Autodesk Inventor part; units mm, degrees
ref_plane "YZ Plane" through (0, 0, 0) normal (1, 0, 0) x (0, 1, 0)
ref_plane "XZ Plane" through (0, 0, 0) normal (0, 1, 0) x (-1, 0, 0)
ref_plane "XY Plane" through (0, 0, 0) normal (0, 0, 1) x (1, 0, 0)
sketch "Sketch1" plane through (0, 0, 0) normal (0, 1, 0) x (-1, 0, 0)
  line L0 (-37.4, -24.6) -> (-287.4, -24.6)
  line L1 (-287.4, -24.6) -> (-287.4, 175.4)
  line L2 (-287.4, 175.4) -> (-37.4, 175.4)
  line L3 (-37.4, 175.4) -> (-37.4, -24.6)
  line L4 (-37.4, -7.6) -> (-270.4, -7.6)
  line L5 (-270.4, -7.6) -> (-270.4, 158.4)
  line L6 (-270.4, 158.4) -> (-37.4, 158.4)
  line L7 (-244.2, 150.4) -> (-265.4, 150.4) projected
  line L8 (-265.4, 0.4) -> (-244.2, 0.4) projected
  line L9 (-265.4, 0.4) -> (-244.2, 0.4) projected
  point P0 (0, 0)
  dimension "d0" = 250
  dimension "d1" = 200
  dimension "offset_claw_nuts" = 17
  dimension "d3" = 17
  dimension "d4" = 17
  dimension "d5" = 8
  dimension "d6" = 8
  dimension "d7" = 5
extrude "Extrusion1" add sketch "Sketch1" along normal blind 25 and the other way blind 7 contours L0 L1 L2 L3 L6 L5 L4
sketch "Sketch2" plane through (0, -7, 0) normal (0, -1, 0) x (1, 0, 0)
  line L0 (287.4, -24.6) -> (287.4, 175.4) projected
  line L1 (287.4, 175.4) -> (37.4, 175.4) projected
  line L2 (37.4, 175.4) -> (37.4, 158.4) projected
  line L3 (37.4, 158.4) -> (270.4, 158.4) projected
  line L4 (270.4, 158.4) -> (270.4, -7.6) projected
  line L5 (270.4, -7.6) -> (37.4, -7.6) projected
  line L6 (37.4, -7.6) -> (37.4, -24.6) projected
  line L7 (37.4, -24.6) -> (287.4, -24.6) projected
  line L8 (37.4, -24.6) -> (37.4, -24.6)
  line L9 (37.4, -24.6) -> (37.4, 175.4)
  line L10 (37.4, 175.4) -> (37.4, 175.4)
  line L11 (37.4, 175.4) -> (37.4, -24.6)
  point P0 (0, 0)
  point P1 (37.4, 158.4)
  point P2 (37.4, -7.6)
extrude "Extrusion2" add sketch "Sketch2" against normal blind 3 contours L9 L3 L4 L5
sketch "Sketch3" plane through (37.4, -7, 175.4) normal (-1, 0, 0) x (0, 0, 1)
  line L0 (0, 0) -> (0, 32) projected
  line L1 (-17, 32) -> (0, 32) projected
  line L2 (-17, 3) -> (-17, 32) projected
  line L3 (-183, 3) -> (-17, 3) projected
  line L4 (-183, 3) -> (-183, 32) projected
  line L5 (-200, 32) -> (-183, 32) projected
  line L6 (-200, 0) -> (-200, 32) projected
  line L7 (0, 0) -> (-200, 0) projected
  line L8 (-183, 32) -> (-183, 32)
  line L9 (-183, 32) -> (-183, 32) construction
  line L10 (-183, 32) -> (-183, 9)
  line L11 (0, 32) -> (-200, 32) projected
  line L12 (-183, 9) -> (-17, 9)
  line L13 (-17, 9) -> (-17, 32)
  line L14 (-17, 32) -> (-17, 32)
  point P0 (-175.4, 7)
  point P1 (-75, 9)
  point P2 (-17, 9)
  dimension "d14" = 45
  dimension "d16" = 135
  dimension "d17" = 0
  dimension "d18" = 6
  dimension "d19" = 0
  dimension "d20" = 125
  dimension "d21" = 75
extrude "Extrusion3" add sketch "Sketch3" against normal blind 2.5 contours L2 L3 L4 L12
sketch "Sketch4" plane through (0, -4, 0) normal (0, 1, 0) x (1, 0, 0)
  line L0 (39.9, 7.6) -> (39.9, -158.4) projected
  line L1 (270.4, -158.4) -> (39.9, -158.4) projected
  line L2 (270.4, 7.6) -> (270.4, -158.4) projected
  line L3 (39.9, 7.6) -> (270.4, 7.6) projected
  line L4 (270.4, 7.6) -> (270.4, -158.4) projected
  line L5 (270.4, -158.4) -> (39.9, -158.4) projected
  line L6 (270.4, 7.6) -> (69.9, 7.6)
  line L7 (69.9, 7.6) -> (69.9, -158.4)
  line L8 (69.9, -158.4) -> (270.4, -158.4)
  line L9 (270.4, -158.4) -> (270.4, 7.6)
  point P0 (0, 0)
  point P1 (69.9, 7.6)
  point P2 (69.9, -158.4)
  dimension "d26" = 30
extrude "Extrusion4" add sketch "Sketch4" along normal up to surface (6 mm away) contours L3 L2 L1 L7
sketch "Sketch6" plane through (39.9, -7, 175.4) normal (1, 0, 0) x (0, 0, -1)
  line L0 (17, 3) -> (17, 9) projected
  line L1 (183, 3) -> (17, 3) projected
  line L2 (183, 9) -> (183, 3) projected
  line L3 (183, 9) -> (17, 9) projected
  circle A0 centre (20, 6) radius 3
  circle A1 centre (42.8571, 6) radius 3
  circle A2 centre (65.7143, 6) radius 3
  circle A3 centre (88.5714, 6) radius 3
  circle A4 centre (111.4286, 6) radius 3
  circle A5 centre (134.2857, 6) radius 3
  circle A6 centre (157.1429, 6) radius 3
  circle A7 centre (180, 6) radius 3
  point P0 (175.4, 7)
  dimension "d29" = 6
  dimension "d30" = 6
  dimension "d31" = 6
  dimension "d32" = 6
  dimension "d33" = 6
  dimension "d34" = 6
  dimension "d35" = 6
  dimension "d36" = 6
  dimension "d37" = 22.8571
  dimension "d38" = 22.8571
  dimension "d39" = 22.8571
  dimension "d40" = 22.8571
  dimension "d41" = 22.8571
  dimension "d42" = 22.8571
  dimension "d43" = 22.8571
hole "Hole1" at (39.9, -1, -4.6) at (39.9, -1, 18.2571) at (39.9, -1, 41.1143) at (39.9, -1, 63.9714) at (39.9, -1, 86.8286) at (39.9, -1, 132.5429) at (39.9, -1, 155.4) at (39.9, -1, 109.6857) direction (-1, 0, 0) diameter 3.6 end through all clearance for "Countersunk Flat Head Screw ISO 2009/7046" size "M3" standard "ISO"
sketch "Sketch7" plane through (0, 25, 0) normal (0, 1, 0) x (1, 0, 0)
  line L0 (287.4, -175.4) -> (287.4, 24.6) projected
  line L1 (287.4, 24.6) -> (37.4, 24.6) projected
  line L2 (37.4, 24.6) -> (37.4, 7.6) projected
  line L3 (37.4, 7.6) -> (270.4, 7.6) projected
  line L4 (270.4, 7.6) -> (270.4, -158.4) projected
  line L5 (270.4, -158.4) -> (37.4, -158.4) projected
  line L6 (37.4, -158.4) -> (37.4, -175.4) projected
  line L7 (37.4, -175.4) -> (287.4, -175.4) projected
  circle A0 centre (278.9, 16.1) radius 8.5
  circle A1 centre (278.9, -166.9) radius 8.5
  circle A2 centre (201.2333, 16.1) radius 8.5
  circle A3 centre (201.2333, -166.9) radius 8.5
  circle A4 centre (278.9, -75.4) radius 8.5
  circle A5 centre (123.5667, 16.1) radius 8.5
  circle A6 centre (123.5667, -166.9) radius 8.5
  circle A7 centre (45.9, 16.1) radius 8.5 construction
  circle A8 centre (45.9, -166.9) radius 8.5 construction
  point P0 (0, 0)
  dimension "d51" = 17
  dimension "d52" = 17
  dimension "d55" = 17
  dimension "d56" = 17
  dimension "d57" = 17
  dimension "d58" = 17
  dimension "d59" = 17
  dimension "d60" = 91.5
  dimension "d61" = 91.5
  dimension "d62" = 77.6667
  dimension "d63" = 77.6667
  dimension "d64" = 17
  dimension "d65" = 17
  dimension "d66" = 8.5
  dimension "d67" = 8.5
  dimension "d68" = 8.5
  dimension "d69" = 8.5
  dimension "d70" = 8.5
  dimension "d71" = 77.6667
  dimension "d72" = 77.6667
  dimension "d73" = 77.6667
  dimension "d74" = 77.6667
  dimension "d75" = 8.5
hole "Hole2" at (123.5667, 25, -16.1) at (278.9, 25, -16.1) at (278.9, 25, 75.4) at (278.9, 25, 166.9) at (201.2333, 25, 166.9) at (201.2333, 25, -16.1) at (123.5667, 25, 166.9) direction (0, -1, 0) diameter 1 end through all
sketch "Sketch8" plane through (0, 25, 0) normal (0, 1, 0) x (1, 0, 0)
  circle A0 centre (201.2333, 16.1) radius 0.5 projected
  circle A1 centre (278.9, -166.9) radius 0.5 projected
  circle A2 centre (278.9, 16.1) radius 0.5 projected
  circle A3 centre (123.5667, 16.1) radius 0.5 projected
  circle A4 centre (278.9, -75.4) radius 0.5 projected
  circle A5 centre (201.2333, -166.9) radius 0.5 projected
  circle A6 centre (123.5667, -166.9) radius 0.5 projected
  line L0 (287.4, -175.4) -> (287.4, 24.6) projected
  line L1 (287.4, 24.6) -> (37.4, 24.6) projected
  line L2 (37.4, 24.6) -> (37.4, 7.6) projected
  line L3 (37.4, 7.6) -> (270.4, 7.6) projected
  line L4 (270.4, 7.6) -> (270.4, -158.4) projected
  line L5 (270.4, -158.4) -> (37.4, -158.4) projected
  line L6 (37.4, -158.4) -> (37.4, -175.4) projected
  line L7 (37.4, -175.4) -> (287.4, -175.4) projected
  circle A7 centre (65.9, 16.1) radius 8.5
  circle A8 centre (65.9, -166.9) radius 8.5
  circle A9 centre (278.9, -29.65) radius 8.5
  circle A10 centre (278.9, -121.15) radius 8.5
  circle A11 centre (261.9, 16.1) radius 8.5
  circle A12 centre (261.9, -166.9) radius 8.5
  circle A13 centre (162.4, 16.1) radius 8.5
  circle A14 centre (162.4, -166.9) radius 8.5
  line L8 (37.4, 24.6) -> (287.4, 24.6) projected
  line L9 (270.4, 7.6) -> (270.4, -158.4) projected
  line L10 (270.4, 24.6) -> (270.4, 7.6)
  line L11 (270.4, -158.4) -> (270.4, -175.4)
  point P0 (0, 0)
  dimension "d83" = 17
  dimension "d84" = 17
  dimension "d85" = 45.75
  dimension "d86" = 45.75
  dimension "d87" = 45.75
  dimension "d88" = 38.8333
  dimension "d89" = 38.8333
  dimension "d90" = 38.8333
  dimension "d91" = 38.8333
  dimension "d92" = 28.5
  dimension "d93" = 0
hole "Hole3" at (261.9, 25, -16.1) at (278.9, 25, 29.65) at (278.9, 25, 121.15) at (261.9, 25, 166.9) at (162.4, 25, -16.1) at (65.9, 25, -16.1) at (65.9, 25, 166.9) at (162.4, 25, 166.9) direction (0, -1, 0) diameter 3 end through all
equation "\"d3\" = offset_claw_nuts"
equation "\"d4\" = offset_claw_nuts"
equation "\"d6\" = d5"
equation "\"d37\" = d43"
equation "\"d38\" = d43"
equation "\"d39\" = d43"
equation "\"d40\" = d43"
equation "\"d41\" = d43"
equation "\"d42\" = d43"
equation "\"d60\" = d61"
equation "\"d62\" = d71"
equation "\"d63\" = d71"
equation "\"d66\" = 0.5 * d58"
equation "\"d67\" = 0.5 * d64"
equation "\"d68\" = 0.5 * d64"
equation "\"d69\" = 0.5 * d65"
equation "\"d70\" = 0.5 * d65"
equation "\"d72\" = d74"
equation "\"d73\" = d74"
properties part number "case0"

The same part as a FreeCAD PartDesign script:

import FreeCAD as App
import Part
import Sketcher
from FreeCAD import Vector
Q = App.Units.Quantity


def add_polygon(sketch, points):
    """Adds a closed chain of lines whose ends are joined by coincident constraints."""
    first, n = sketch.GeometryCount, len(points)
    for a, b in zip(points, points[1:] + points[:1]):
        sketch.addGeometry(Part.LineSegment(App.Vector(*a, 0), App.Vector(*b, 0)), False)
    for i in range(n):
        sketch.addConstraint(Sketcher.Constraint("Coincident", first + i, 2, first + (i + 1) % n, 1))

doc = App.newDocument("Part")
body = doc.addObject("PartDesign::Body", "Body")

# Sketch on XZ plane
sketch1 = body.newObject("Sketcher::SketchObject", "Sketch")
sketch1.AttachmentSupport = (doc.getObject("XZ_Plane"), [""])
sketch1.MapMode = "FlatFace"
add_polygon(sketch1, [(287.4, -24.6), (37.4, -24.6), (37.4, -7.6), (270.4, -7.6), (270.4, 158.4), (37.4, 158.4), (37.4, 175.4), (287.4, 175.4)])  # lines 0-7
sketch1.addConstraint([
    Sketcher.Constraint("Horizontal", 0),
    Sketcher.Constraint("Vertical", 1),
    Sketcher.Constraint("Horizontal", 2),
    Sketcher.Constraint("Vertical", 3),
    Sketcher.Constraint("Horizontal", 4),
    Sketcher.Constraint("Vertical", 5),
    Sketcher.Constraint("Horizontal", 6),
    Sketcher.Constraint("Vertical", 7),
    Sketcher.Constraint("Vertical", 1, 2, 4, 2),
    Sketcher.Constraint("Equal", 1, 5),
    Sketcher.Constraint("DistanceX", 0, 2, 0, 1, Q("250 mm")),
    Sketcher.Constraint("DistanceY", 1, 1, 1, 2, Q("17 mm")),
    Sketcher.Constraint("DistanceY", 7, 2, 7, 1, Q("200 mm")),
    Sketcher.Constraint("DistanceX", 3, 2, 6, 2, Q("17 mm")),
    Sketcher.Constraint("DistanceX", -1, 1, 0, 2, Q("37.4 mm")),
    Sketcher.Constraint("DistanceY", 0, 2, -1, 1, Q("24.6 mm")),
])
pad1 = body.newObject("PartDesign::Pad", "Pad")
pad1.Profile = sketch1
pad1.Type = "TwoLengths"
pad1.Length = 25
pad1.Length2 = 7
pad1.Reversed = True

# Sketch on XZ plane
sketch2 = body.newObject("Sketcher::SketchObject", "Sketch001")
sketch2.AttachmentSupport = (doc.getObject("XZ_Plane"), [""])
sketch2.MapMode = "FlatFace"
sketch2.AttachmentOffset = App.Placement(Vector(0, 0, 7), App.Rotation())
add_polygon(sketch2, [(37.4, 158.4), (37.4, -7.6), (270.4, -7.6), (270.4, 158.4)])  # lines 0-3
sketch2.addConstraint([
    Sketcher.Constraint("Vertical", 0),
    Sketcher.Constraint("Horizontal", 1),
    Sketcher.Constraint("Vertical", 2),
    Sketcher.Constraint("Horizontal", 3),
    Sketcher.Constraint("DistanceX", 1, 1, 1, 2, Q("233 mm")),
    Sketcher.Constraint("DistanceY", 0, 2, 0, 1, Q("166 mm")),
    Sketcher.Constraint("DistanceX", -1, 1, 0, 2, Q("37.4 mm")),
    Sketcher.Constraint("DistanceY", 0, 2, -1, 1, Q("7.6 mm")),
])
pad2 = body.newObject("PartDesign::Pad", "Pad001")
pad2.Profile = sketch2
pad2.Length = 3
pad2.Reversed = True

# Sketch on YZ plane
sketch3 = body.newObject("Sketcher::SketchObject", "Sketch002")
sketch3.AttachmentSupport = (doc.getObject("YZ_Plane"), [""])
sketch3.MapMode = "FlatFace"
sketch3.AttachmentOffset = App.Placement(Vector(0, 0, 37.4), App.Rotation())
add_polygon(sketch3, [(-4, 158.4), (2, 158.4), (2, -7.6), (-4, -7.6)])  # lines 0-3
sketch3.addConstraint([
    Sketcher.Constraint("Horizontal", 0),
    Sketcher.Constraint("Vertical", 1),
    Sketcher.Constraint("Horizontal", 2),
    Sketcher.Constraint("Vertical", 3),
    Sketcher.Constraint("DistanceX", 0, 1, 0, 2, Q("6 mm")),
    Sketcher.Constraint("DistanceY", 1, 2, 1, 1, Q("166 mm")),
    Sketcher.Constraint("DistanceX", -1, 1, 0, 2, Q("2 mm")),
    Sketcher.Constraint("DistanceY", -1, 1, 0, 2, Q("158.4 mm")),
])
pad3 = body.newObject("PartDesign::Pad", "Pad002")
pad3.Profile = sketch3
pad3.Length = 2.5

# Sketch on XZ plane
sketch4 = body.newObject("Sketcher::SketchObject", "Sketch003")
sketch4.AttachmentSupport = (doc.getObject("XZ_Plane"), [""])
sketch4.MapMode = "FlatFace"
sketch4.AttachmentOffset = App.Placement(Vector(0, 0, 4), App.Rotation())
add_polygon(sketch4, [(270.4, -7.6), (69.9, -7.6), (69.9, 158.4), (270.4, 158.4)])  # lines 0-3
sketch4.addConstraint([
    Sketcher.Constraint("Horizontal", 0),
    Sketcher.Constraint("Vertical", 1),
    Sketcher.Constraint("Horizontal", 2),
    Sketcher.Constraint("Vertical", 3),
    Sketcher.Constraint("DistanceY", 1, 1, 1, 2, Q("166 mm")),
    Sketcher.Constraint("DistanceX", 0, 2, 0, 1, Q("200.5 mm")),
    Sketcher.Constraint("DistanceX", -1, 1, 0, 2, Q("69.9 mm")),
    Sketcher.Constraint("DistanceY", 0, 2, -1, 1, Q("7.6 mm")),
])
pad4 = body.newObject("PartDesign::Pad", "Pad003")
pad4.Profile = sketch4
pad4.Length = 6
pad4.Reversed = True

# Sketch on YZ plane
sketch5 = body.newObject("Sketcher::SketchObject", "Sketch004")
sketch5.AttachmentSupport = (doc.getObject("YZ_Plane"), [""])
sketch5.MapMode = "FlatFace"
sketch5.AttachmentOffset = App.Placement(Vector(0, 0, 39.9), App.Rotation())
sketch5.addGeometry([
    Part.Circle(Vector(-1, -4.6, 0), Vector(0, 0, 1), 1.8),  # 0
    Part.Circle(Vector(-1, 18.2571, 0), Vector(0, 0, 1), 1.8),  # 1
    Part.Circle(Vector(-1, 41.1143, 0), Vector(0, 0, 1), 1.8),  # 2
    Part.Circle(Vector(-1, 63.9714, 0), Vector(0, 0, 1), 1.8),  # 3
    Part.Circle(Vector(-1, 86.8286, 0), Vector(0, 0, 1), 1.8),  # 4
    Part.Circle(Vector(-1, 132.5429, 0), Vector(0, 0, 1), 1.8),  # 5
    Part.Circle(Vector(-1, 155.4, 0), Vector(0, 0, 1), 1.8),  # 6
    Part.Circle(Vector(-1, 109.6857, 0), Vector(0, 0, 1), 1.8),  # 7
], False)
sketch5.addConstraint([
    Sketcher.Constraint("Equal", 0, 1),
    Sketcher.Constraint("Equal", 1, 2),
    Sketcher.Constraint("Equal", 2, 3),
    Sketcher.Constraint("Equal", 3, 4),
    Sketcher.Constraint("Equal", 4, 5),
    Sketcher.Constraint("Equal", 5, 6),
    Sketcher.Constraint("Equal", 6, 7),
    Sketcher.Constraint("Vertical", 0, 3, 1, 3),
    Sketcher.Constraint("Vertical", 1, 3, 2, 3),
    Sketcher.Constraint("Vertical", 2, 3, 3, 3),
    Sketcher.Constraint("Vertical", 3, 3, 4, 3),
    Sketcher.Constraint("Vertical", 4, 3, 5, 3),
    Sketcher.Constraint("Vertical", 5, 3, 6, 3),
    Sketcher.Constraint("Vertical", 6, 3, 7, 3),
    Sketcher.Constraint("Diameter", 0, Q("3.6 mm")),
    Sketcher.Constraint("DistanceX", 0, 3, -1, 1, Q("1 mm")),
    Sketcher.Constraint("DistanceY", 0, 3, -1, 1, Q("4.6 mm")),
    Sketcher.Constraint("DistanceY", -1, 1, 6, 3, Q("155.4 mm")),
    Sketcher.Constraint("DistanceY", -1, 1, 1, 3, Q("18.257 mm")),
    Sketcher.Constraint("DistanceY", -1, 1, 5, 3, Q("132.543 mm")),
    Sketcher.Constraint("DistanceY", 2, 3, 3, 3, Q("22.857 mm")),
    Sketcher.Constraint("DistanceY", 4, 3, 7, 3, Q("22.857 mm")),
    Sketcher.Constraint("DistanceY", -1, 1, 2, 3, Q("41.1143 mm")),
    Sketcher.Constraint("DistanceY", -1, 1, 4, 3, Q("86.8286 mm")),
])
doc.recompute()
hole = body.newObject("PartDesign::Hole", "Hole")
hole.Profile = sketch5
hole.ThreadType = "None"
hole.Diameter = 3.6
hole.DepthType = "ThroughAll"

# Sketch on XZ plane
sketch6 = body.newObject("Sketcher::SketchObject", "Sketch005")
sketch6.AttachmentSupport = (doc.getObject("XZ_Plane"), [""])
sketch6.MapMode = "FlatFace"
sketch6.AttachmentOffset = App.Placement(Vector(0, 0, -25), App.Rotation())
sketch6.addGeometry([
    Part.Circle(Vector(123.5667, -16.1, 0), Vector(0, 0, 1), 0.5),  # 0
    Part.Circle(Vector(278.9, -16.1, 0), Vector(0, 0, 1), 0.5),  # 1
    Part.Circle(Vector(278.9, 75.4, 0), Vector(0, 0, 1), 0.5),  # 2
    Part.Circle(Vector(278.9, 166.9, 0), Vector(0, 0, 1), 0.5),  # 3
    Part.Circle(Vector(201.2333, 166.9, 0), Vector(0, 0, 1), 0.5),  # 4
    Part.Circle(Vector(201.2333, -16.1, 0), Vector(0, 0, 1), 0.5),  # 5
    Part.Circle(Vector(123.5667, 166.9, 0), Vector(0, 0, 1), 0.5),  # 6
], False)
sketch6.addConstraint([
    Sketcher.Constraint("Equal", 0, 1),
    Sketcher.Constraint("Equal", 1, 2),
    Sketcher.Constraint("Equal", 2, 3),
    Sketcher.Constraint("Equal", 3, 4),
    Sketcher.Constraint("Equal", 4, 5),
    Sketcher.Constraint("Equal", 5, 6),
    Sketcher.Constraint("Horizontal", 0, 3, 1, 3),
    Sketcher.Constraint("Horizontal", 3, 3, 4, 3),
    Sketcher.Constraint("Horizontal", 1, 3, 5, 3),
    Sketcher.Constraint("Horizontal", 4, 3, 6, 3),
    Sketcher.Constraint("Vertical", 1, 3, 2, 3),
    Sketcher.Constraint("Vertical", 2, 3, 3, 3),
    Sketcher.Constraint("Vertical", 4, 3, 5, 3),
    Sketcher.Constraint("Vertical", 0, 3, 6, 3),
    Sketcher.Constraint("Diameter", 0, Q("1 mm")),
    Sketcher.Constraint("DistanceY", 1, 3, 3, 3, Q("183 mm")),
    Sketcher.Constraint("DistanceY", 0, 3, -1, 1, Q("16.1 mm")),
    Sketcher.Constraint("DistanceX", -1, 1, 1, 3, Q("278.9 mm")),
    Sketcher.Constraint("DistanceY", -1, 1, 2, 3, Q("75.4 mm")),
    Sketcher.Constraint("DistanceX", -1, 1, 0, 3, Q("123.5667 mm")),
    Sketcher.Constraint("DistanceX", -1, 1, 4, 3, Q("201.2333 mm")),
])
doc.recompute()
hole2 = body.newObject("PartDesign::Hole", "Hole001")
hole2.Profile = sketch6
hole2.ThreadType = "None"
hole2.Diameter = 1
hole2.DepthType = "ThroughAll"
hole2.Reversed = True

# Sketch on XZ plane
sketch7 = body.newObject("Sketcher::SketchObject", "Sketch006")
sketch7.AttachmentSupport = (doc.getObject("XZ_Plane"), [""])
sketch7.MapMode = "FlatFace"
sketch7.AttachmentOffset = App.Placement(Vector(0, 0, -25), App.Rotation())
sketch7.addGeometry([
    Part.Circle(Vector(261.9, -16.1, 0), Vector(0, 0, 1), 1.5),  # 0
    Part.Circle(Vector(278.9, 29.65, 0), Vector(0, 0, 1), 1.5),  # 1
    Part.Circle(Vector(278.9, 121.15, 0), Vector(0, 0, 1), 1.5),  # 2
    Part.Circle(Vector(261.9, 166.9, 0), Vector(0, 0, 1), 1.5),  # 3
    Part.Circle(Vector(162.4, -16.1, 0), Vector(0, 0, 1), 1.5),  # 4
    Part.Circle(Vector(65.9, -16.1, 0), Vector(0, 0, 1), 1.5),  # 5
    Part.Circle(Vector(65.9, 166.9, 0), Vector(0, 0, 1), 1.5),  # 6
    Part.Circle(Vector(162.4, 166.9, 0), Vector(0, 0, 1), 1.5),  # 7
], False)
sketch7.addConstraint([
    Sketcher.Constraint("Equal", 0, 1),
    Sketcher.Constraint("Equal", 1, 2),
    Sketcher.Constraint("Equal", 2, 3),
    Sketcher.Constraint("Equal", 3, 4),
    Sketcher.Constraint("Equal", 4, 5),
    Sketcher.Constraint("Equal", 5, 6),
    Sketcher.Constraint("Equal", 6, 7),
    Sketcher.Constraint("Horizontal", 0, 3, 4, 3),
    Sketcher.Constraint("Horizontal", 4, 3, 5, 3),
    Sketcher.Constraint("Horizontal", 3, 3, 6, 3),
    Sketcher.Constraint("Horizontal", 6, 3, 7, 3),
    Sketcher.Constraint("Vertical", 1, 3, 2, 3),
    Sketcher.Constraint("Vertical", 0, 3, 3, 3),
    Sketcher.Constraint("Vertical", 5, 3, 6, 3),
    Sketcher.Constraint("Vertical", 4, 3, 7, 3),
    Sketcher.Constraint("Diameter", 0, Q("3 mm")),
    Sketcher.Constraint("DistanceX", 0, 3, 1, 3, Q("17 mm")),
    Sketcher.Constraint("DistanceY", 0, 3, 3, 3, Q("183 mm")),
    Sketcher.Constraint("DistanceX", 5, 3, 0, 3, Q("196 mm")),
    Sketcher.Constraint("DistanceX", -1, 1, 0, 3, Q("261.9 mm")),
    Sketcher.Constraint("DistanceY", 0, 3, -1, 1, Q("16.1 mm")),
    Sketcher.Constraint("DistanceX", -1, 1, 4, 3, Q("162.4 mm")),
    Sketcher.Constraint("DistanceY", 1, 3, 2, 3, Q("91.5 mm")),
    Sketcher.Constraint("DistanceY", -1, 1, 1, 3, Q("29.65 mm")),
])
doc.recompute()
hole3 = body.newObject("PartDesign::Hole", "Hole002")
hole3.Profile = sketch7
hole3.ThreadType = "None"
hole3.Diameter = 3
hole3.DepthType = "ThroughAll"
hole3.Reversed = True

doc.recompute()
